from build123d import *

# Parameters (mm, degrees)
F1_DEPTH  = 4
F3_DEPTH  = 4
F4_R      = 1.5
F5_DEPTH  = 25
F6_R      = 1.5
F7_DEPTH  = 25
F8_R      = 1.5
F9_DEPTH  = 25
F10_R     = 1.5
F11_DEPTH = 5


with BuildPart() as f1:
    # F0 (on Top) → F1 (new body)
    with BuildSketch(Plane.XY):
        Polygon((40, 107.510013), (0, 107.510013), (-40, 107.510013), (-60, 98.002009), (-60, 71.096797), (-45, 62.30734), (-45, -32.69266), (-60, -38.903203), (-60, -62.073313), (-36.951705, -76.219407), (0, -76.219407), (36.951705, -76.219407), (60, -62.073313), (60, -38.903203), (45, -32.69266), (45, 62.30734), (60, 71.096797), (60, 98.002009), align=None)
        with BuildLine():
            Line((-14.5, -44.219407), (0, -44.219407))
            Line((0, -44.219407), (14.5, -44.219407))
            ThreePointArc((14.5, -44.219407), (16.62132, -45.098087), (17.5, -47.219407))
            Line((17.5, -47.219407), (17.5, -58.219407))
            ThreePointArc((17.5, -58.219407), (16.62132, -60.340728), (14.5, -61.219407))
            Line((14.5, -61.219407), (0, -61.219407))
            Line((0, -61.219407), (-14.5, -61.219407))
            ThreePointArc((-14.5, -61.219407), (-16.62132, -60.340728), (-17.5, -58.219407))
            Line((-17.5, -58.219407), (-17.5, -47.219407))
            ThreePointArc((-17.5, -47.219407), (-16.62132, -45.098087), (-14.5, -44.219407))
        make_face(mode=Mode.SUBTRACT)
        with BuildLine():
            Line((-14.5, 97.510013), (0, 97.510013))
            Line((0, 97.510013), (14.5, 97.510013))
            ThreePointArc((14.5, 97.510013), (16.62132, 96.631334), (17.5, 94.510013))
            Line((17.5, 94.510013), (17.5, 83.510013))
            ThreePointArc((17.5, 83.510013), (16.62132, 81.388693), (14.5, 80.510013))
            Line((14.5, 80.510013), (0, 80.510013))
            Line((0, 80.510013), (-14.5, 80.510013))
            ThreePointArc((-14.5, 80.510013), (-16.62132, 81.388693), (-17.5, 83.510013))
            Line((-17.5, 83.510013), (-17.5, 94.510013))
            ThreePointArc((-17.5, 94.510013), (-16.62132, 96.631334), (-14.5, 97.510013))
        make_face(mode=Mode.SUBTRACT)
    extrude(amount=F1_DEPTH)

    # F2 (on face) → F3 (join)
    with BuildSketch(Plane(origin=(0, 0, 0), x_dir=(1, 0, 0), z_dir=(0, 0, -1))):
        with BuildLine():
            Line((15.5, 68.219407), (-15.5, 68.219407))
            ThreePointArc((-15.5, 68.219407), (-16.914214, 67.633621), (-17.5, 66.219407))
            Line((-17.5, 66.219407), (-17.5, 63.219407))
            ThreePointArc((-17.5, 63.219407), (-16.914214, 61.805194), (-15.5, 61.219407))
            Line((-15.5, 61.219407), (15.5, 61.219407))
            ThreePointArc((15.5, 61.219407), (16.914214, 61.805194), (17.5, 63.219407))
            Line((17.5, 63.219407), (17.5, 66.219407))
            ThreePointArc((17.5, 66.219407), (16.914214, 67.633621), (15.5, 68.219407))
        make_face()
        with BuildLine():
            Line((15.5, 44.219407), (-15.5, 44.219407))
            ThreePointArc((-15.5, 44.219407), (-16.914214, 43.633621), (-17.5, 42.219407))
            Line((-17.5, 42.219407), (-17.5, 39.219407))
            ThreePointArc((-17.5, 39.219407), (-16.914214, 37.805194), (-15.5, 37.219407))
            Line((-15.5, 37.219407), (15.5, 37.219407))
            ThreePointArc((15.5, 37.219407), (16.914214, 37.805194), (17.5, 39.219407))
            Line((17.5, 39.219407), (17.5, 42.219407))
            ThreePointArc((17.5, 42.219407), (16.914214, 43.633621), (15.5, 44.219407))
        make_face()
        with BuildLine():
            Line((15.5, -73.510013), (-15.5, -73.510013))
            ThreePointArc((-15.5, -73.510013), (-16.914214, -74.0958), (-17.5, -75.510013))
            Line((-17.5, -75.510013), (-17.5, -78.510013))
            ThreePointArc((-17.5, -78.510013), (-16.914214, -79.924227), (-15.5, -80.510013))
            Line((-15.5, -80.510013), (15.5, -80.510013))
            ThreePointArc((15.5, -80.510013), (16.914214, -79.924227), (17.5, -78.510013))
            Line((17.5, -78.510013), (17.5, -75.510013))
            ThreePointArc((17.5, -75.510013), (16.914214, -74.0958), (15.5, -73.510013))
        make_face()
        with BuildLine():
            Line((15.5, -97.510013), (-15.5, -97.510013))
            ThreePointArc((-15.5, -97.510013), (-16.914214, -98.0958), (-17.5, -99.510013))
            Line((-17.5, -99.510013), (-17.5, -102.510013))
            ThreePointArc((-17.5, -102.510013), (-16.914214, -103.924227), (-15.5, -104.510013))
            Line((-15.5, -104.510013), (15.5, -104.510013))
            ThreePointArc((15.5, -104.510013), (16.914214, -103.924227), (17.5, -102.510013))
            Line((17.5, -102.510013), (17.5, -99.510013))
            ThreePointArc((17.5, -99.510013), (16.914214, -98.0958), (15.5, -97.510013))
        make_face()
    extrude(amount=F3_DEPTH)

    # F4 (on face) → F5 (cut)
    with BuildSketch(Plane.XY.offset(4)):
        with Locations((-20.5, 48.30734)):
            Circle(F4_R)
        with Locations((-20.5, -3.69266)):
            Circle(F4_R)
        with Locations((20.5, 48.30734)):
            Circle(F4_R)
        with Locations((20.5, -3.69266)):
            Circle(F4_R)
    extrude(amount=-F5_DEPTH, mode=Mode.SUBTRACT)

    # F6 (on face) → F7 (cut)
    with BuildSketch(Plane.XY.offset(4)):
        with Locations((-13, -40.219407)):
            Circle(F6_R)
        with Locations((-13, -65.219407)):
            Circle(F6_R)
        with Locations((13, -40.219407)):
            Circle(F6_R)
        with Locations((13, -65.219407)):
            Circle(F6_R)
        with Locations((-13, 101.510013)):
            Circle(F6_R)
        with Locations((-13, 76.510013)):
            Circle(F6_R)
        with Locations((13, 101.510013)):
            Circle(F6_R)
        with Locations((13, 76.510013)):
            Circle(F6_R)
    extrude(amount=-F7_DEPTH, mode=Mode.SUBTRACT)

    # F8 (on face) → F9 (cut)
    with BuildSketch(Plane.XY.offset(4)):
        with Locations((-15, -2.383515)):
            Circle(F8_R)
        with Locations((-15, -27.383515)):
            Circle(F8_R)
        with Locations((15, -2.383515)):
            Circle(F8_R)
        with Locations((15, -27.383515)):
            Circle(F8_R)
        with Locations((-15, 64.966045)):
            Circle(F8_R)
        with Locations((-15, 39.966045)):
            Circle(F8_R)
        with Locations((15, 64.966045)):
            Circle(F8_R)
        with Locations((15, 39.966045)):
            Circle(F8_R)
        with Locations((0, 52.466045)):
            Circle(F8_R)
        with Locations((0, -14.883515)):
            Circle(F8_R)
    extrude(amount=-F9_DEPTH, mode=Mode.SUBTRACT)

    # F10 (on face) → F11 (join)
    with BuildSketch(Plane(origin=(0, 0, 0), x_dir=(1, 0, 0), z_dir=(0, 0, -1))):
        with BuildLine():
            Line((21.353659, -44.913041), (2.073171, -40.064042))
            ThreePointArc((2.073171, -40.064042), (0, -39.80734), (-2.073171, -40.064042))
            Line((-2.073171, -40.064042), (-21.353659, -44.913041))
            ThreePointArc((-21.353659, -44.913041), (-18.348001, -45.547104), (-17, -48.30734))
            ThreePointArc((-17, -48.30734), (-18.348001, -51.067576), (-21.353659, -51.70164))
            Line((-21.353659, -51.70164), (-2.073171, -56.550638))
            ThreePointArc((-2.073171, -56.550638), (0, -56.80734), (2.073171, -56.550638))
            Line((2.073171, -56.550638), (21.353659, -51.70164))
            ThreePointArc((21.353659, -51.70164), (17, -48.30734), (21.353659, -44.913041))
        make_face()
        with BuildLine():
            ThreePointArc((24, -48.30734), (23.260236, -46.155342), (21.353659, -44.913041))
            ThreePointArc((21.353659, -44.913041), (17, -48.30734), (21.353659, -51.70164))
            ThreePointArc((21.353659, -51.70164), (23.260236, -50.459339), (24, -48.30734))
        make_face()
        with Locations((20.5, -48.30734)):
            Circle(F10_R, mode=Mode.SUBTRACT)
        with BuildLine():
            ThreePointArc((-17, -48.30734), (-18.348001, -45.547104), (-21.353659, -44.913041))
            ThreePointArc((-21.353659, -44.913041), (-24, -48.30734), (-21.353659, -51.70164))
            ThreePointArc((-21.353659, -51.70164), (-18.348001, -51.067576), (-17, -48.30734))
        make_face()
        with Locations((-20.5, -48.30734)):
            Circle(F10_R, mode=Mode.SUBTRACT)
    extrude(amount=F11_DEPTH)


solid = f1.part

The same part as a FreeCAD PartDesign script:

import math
import FreeCAD as App
import Part
import Sketcher
from FreeCAD import Vector

doc = App.newDocument("Part")
body = doc.addObject("PartDesign::Body", "Body")

sketch1 = body.newObject("Sketcher::SketchObject", "Sketch")
sketch1.AttachmentSupport = (doc.getObject("XY_Plane"), [""])
sketch1.MapMode = "FlatFace"
sketch1.addGeometry([
    Part.LineSegment(Vector(40, 107.510013, 0), Vector(-40, 107.510013, 0)),
    Part.LineSegment(Vector(-40, 107.510013, 0), Vector(-60, 98.002009, 0)),
    Part.LineSegment(Vector(-60, 98.002009, 0), Vector(-60, 71.096797, 0)),
    Part.LineSegment(Vector(-60, 71.096797, 0), Vector(-45, 62.30734, 0)),
    Part.LineSegment(Vector(-45, 62.30734, 0), Vector(-45, -32.69266, 0)),
    Part.LineSegment(Vector(-45, -32.69266, 0), Vector(-60, -38.903203, 0)),
    Part.LineSegment(Vector(-60, -38.903203, 0), Vector(-60, -62.073313, 0)),
    Part.LineSegment(Vector(-60, -62.073313, 0), Vector(-36.951705, -76.219407, 0)),
    Part.LineSegment(Vector(-36.951705, -76.219407, 0), Vector(36.951705, -76.219407, 0)),
    Part.LineSegment(Vector(36.951705, -76.219407, 0), Vector(60, -62.073313, 0)),
    Part.LineSegment(Vector(60, -62.073313, 0), Vector(60, -38.903203, 0)),
    Part.LineSegment(Vector(60, -38.903203, 0), Vector(45, -32.69266, 0)),
    Part.LineSegment(Vector(45, -32.69266, 0), Vector(45, 62.30734, 0)),
    Part.LineSegment(Vector(45, 62.30734, 0), Vector(60, 71.096797, 0)),
    Part.LineSegment(Vector(60, 71.096797, 0), Vector(60, 98.002009, 0)),
    Part.LineSegment(Vector(60, 98.002009, 0), Vector(40, 107.510013, 0)),
    Part.ArcOfCircle(Part.Circle(Vector(-14.499999, -47.219408, 0), Vector(0, 0, 1), 3.000001), math.radians(90.000022), math.radians(179.999978)),
    Part.LineSegment(Vector(-14.5, -44.219407, 0), Vector(14.5, -44.219407, 0)),
    Part.ArcOfCircle(Part.Circle(Vector(14.499999, -47.219408, 0), Vector(0, 0, 1), 3.000001), math.radians(0.000022), math.radians(89.999978)),
    Part.LineSegment(Vector(17.5, -47.219407, 0), Vector(17.5, -58.219407, 0)),
    Part.ArcOfCircle(Part.Circle(Vector(14.500001, -58.219408, 0), Vector(0, 0, 1), 2.999999), math.radians(-90.00001), math.radians(0.00001)),
    Part.LineSegment(Vector(14.5, -61.219407, 0), Vector(-14.5, -61.219407, 0)),
    Part.ArcOfCircle(Part.Circle(Vector(-14.500001, -58.219408, 0), Vector(0, 0, 1), 2.999999), math.radians(179.99999), math.radians(270.00001)),
    Part.LineSegment(Vector(-17.5, -58.219407, 0), Vector(-17.5, -47.219407, 0)),
    Part.ArcOfCircle(Part.Circle(Vector(-14.500001, 94.510014, 0), Vector(0, 0, 1), 2.999999), math.radians(89.99999), math.radians(180.00001)),
    Part.LineSegment(Vector(-14.5, 97.510013, 0), Vector(14.5, 97.510013, 0)),
    Part.ArcOfCircle(Part.Circle(Vector(14.500001, 94.510014, 0), Vector(0, 0, 1), 2.999999), math.radians(-0.00001), math.radians(90.00001)),
    Part.LineSegment(Vector(17.5, 94.510013, 0), Vector(17.5, 83.510013, 0)),
    Part.ArcOfCircle(Part.Circle(Vector(14.499999, 83.510014, 0), Vector(0, 0, 1), 3.000001), math.radians(-89.999978), math.radians(-0.000022)),
    Part.LineSegment(Vector(14.5, 80.510013, 0), Vector(-14.5, 80.510013, 0)),
    Part.ArcOfCircle(Part.Circle(Vector(-14.499999, 83.510014, 0), Vector(0, 0, 1), 3.000001), math.radians(-179.999978), math.radians(-90.000022)),
    Part.LineSegment(Vector(-17.5, 83.510013, 0), Vector(-17.5, 94.510013, 0)),
], False)
sketch1.addConstraint([
    Sketcher.Constraint("Coincident", 0, 2, 1, 1),
    Sketcher.Constraint("Coincident", 1, 2, 2, 1),
    Sketcher.Constraint("Coincident", 2, 2, 3, 1),
    Sketcher.Constraint("Coincident", 3, 2, 4, 1),
    Sketcher.Constraint("Coincident", 4, 2, 5, 1),
    Sketcher.Constraint("Coincident", 5, 2, 6, 1),
    Sketcher.Constraint("Coincident", 6, 2, 7, 1),
    Sketcher.Constraint("Coincident", 7, 2, 8, 1),
    Sketcher.Constraint("Coincident", 8, 2, 9, 1),
    Sketcher.Constraint("Coincident", 9, 2, 10, 1),
    Sketcher.Constraint("Coincident", 10, 2, 11, 1),
    Sketcher.Constraint("Coincident", 11, 2, 12, 1),
    Sketcher.Constraint("Coincident", 12, 2, 13, 1),
    Sketcher.Constraint("Coincident", 13, 2, 14, 1),
    Sketcher.Constraint("Coincident", 14, 2, 15, 1),
    Sketcher.Constraint("Coincident", 15, 2, 0, 1),
    Sketcher.Constraint("Tangent", 16, 1, 17, 1),
    Sketcher.Constraint("Tangent", 17, 2, 18, 2),
    Sketcher.Constraint("Tangent", 18, 1, 19, 1),
    Sketcher.Constraint("Tangent", 19, 2, 20, 2),
    Sketcher.Constraint("Tangent", 20, 1, 21, 1),
    Sketcher.Constraint("Tangent", 21, 2, 22, 2),
    Sketcher.Constraint("Tangent", 22, 1, 23, 1),
    Sketcher.Constraint("Tangent", 23, 2, 16, 2),
    Sketcher.Constraint("Tangent", 24, 1, 25, 1),
    Sketcher.Constraint("Tangent", 25, 2, 26, 2),
    Sketcher.Constraint("Tangent", 26, 1, 27, 1),
    Sketcher.Constraint("Tangent", 27, 2, 28, 2),
    Sketcher.Constraint("Tangent", 28, 1, 29, 1),
    Sketcher.Constraint("Tangent", 29, 2, 30, 2),
    Sketcher.Constraint("Tangent", 30, 1, 31, 1),
    Sketcher.Constraint("Tangent", 31, 2, 24, 2),
    Sketcher.Constraint("Horizontal", 0),
    Sketcher.Constraint("Vertical", 2),
    Sketcher.Constraint("Vertical", 4),
    Sketcher.Constraint("Vertical", 6),
    Sketcher.Constraint("Horizontal", 8),
    Sketcher.Constraint("Vertical", 10),
    Sketcher.Constraint("Vertical", 12),
    Sketcher.Constraint("Vertical", 14),
    Sketcher.Constraint("Horizontal", 17),
    Sketcher.Constraint("Vertical", 19),
    Sketcher.Constraint("Horizontal", 21),
    Sketcher.Constraint("Vertical", 23),
    Sketcher.Constraint("Horizontal", 25),
    Sketcher.Constraint("Vertical", 27),
    Sketcher.Constraint("Horizontal", 29),
    Sketcher.Constraint("Vertical", 31),
    Sketcher.Constraint("Equal", 16, 18),
    Sketcher.Constraint("Equal", 18, 20),
    Sketcher.Constraint("Equal", 20, 22),
    Sketcher.Constraint("Equal", 22, 24),
    Sketcher.Constraint("Equal", 24, 26),
    Sketcher.Constraint("Equal", 26, 28),
    Sketcher.Constraint("Equal", 28, 30),
    Sketcher.Constraint("Symmetric", 6, 2, 9, 2, -2),
    Sketcher.Constraint("Symmetric", 4, 2, 11, 2, -2),
    Sketcher.Constraint("Symmetric", 2, 2, 13, 2, -2),
    Sketcher.Constraint("Horizontal", 5, 2, 10, 2),
    Sketcher.Constraint("Horizontal", 3, 2, 12, 2),
    Sketcher.Constraint("Horizontal", 1, 2, 14, 2),
    Sketcher.Constraint("Vertical", 22, 3, 24, 3),
    Sketcher.Constraint("Vertical", 20, 3, 26, 3),
    Sketcher.Constraint("Vertical", 2, 2, 5, 2),
    Sketcher.Constraint("Equal", 23, 27),
    Sketcher.Constraint("Equal", 7, 9),
    Sketcher.Constraint("Equal", 1, 15),
    Sketcher.Constraint("Radius", 16, 3.000001),
    Sketcher.Constraint("DistanceX", 0, 2, 0, 1, 80.0),
    Sketcher.Constraint("DistanceX", 17, 1, 17, 2, 29.0),
    Sketcher.Constraint("DistanceY", 4, 2, 4, 1, 95.0),
    Sketcher.Constraint("DistanceY", 19, 2, 19, 1, 11.0),
    Sketcher.Constraint("DistanceX", 1, 2, -1, 1, 60.0),
    Sketcher.Constraint("DistanceX", 3, 2, -1, 1, 45.0),
    Sketcher.Constraint("DistanceY", 24, 3, 0, 2, 12.999999),
    Sketcher.Constraint("DistanceY", 7, 2, 22, 3, 17.999999),
    Sketcher.Constraint("DistanceX", 16, 3, -1, 1, 14.499999),
    Sketcher.Constraint("DistanceX", 8, 1, 8, 2, 73.90341),
    Sketcher.Constraint("DistanceY", 6, 2, 6, 1, 23.17011),
    Sketcher.Constraint("Distance", 3, 17.38547),
    Sketcher.Constraint("DistanceY", 2, 2, 2, 1, 26.905212),
    Sketcher.Constraint("DistanceY", 16, 3, -1, 1, 47.219408),
    Sketcher.Constraint("DistanceY", -1, 1, 1, 2, 98.002009),
    Sketcher.Constraint("DistanceY", 16, 3, 24, 3, 141.729422),
    Sketcher.Constraint("Distance", 5, 16.234865),
])
pad1 = body.newObject("PartDesign::Pad", "Pad")
pad1.Profile = sketch1
pad1.Length = 4

sketch2 = body.newObject("Sketcher::SketchObject", "Sketch001")
sketch2.AttachmentSupport = (doc.getObject("XY_Plane"), [""])
sketch2.MapMode = "FlatFace"
sketch2.addGeometry([
    Part.LineSegment(Vector(15.5, -68.219407, 0), Vector(-15.5, -68.219407, 0)),
    Part.ArcOfCircle(Part.Circle(Vector(-15.500001, -66.219408, 0), Vector(0, 0, 1), 1.999999), math.radians(179.999957), math.radians(270.000043)),
    Part.LineSegment(Vector(-17.5, -66.219407, 0), Vector(-17.5, -63.219407, 0)),
    Part.ArcOfCircle(Part.Circle(Vector(-15.5, -63.219407, 0), Vector(0, 0, 1), 2), math.radians(90.000006), math.radians(179.999994)),
    Part.LineSegment(Vector(-15.5, -61.219407, 0), Vector(15.5, -61.219407, 0)),
    Part.ArcOfCircle(Part.Circle(Vector(15.5, -63.219407, 0), Vector(0, 0, 1), 2), math.radians(0.000006), math.radians(89.999994)),
    Part.LineSegment(Vector(17.5, -63.219407, 0), Vector(17.5, -66.219407, 0)),
    Part.ArcOfCircle(Part.Circle(Vector(15.500001, -66.219408, 0), Vector(0, 0, 1), 1.999999), math.radians(-90.000043), math.radians(0.000043)),
    Part.LineSegment(Vector(15.5, -44.219407, 0), Vector(-15.5, -44.219407, 0)),
    Part.ArcOfCircle(Part.Circle(Vector(-15.500001, -42.219408, 0), Vector(0, 0, 1), 1.999999), math.radians(179.999957), math.radians(270.000043)),
    Part.LineSegment(Vector(-17.5, -42.219407, 0), Vector(-17.5, -39.219407, 0)),
    Part.ArcOfCircle(Part.Circle(Vector(-15.5, -39.219407, 0), Vector(0, 0, 1), 2), math.radians(90.000006), math.radians(179.999994)),
    Part.LineSegment(Vector(-15.5, -37.219407, 0), Vector(15.5, -37.219407, 0)),
    Part.ArcOfCircle(Part.Circle(Vector(15.5, -39.219407, 0), Vector(0, 0, 1), 2), math.radians(0.000006), math.radians(89.999994)),
    Part.LineSegment(Vector(17.5, -39.219407, 0), Vector(17.5, -42.219407, 0)),
    Part.ArcOfCircle(Part.Circle(Vector(15.500001, -42.219408, 0), Vector(0, 0, 1), 1.999999), math.radians(-90.000043), math.radians(0.000043)),
    Part.LineSegment(Vector(15.5, 73.510013, 0), Vector(-15.5, 73.510013, 0)),
    Part.ArcOfCircle(Part.Circle(Vector(-15.5, 75.510013, 0), Vector(0, 0, 1), 2), math.radians(-179.999994), math.radians(-90.000006)),
    Part.LineSegment(Vector(-17.5, 75.510013, 0), Vector(-17.5, 78.510013, 0)),
    Part.ArcOfCircle(Part.Circle(Vector(-15.500001, 78.510014, 0), Vector(0, 0, 1), 1.999999), math.radians(89.999957), math.radians(180.000043)),
    Part.LineSegment(Vector(-15.5, 80.510013, 0), Vector(15.5, 80.510013, 0)),
    Part.ArcOfCircle(Part.Circle(Vector(15.500001, 78.510014, 0), Vector(0, 0, 1), 1.999999), math.radians(-0.000043), math.radians(90.000043)),
    Part.LineSegment(Vector(17.5, 78.510013, 0), Vector(17.5, 75.510013, 0)),
    Part.ArcOfCircle(Part.Circle(Vector(15.5, 75.510013, 0), Vector(0, 0, 1), 2), math.radians(-89.999994), math.radians(-0.000006)),
    Part.LineSegment(Vector(15.5, 97.510013, 0), Vector(-15.5, 97.510013, 0)),
    Part.ArcOfCircle(Part.Circle(Vector(-15.5, 99.510013, 0), Vector(0, 0, 1), 2), math.radians(-179.999994), math.radians(-90.000006)),
    Part.LineSegment(Vector(-17.5, 99.510013, 0), Vector(-17.5, 102.510013, 0)),
    Part.ArcOfCircle(Part.Circle(Vector(-15.500001, 102.510014, 0), Vector(0, 0, 1), 1.999999), math.radians(89.999957), math.radians(180.000043)),
    Part.LineSegment(Vector(-15.5, 104.510013, 0), Vector(15.5, 104.510013, 0)),
    Part.ArcOfCircle(Part.Circle(Vector(15.500001, 102.510014, 0), Vector(0, 0, 1), 1.999999), math.radians(-0.000043), math.radians(90.000043)),
    Part.LineSegment(Vector(17.5, 102.510013, 0), Vector(17.5, 99.510013, 0)),
    Part.ArcOfCircle(Part.Circle(Vector(15.5, 99.510013, 0), Vector(0, 0, 1), 2), math.radians(-89.999994), math.radians(-0.000006)),
], False)
sketch2.addConstraint([
    Sketcher.Constraint("Tangent", 0, 2, 1, 2),
    Sketcher.Constraint("Tangent", 1, 1, 2, 1),
    Sketcher.Constraint("Tangent", 2, 2, 3, 2),
    Sketcher.Constraint("Tangent", 3, 1, 4, 1),
    Sketcher.Constraint("Tangent", 4, 2, 5, 2),
    Sketcher.Constraint("Tangent", 5, 1, 6, 1),
    Sketcher.Constraint("Tangent", 6, 2, 7, 2),
    Sketcher.Constraint("Tangent", 7, 1, 0, 1),
    Sketcher.Constraint("Tangent", 8, 2, 9, 2),
    Sketcher.Constraint("Tangent", 9, 1, 10, 1),
    Sketcher.Constraint("Tangent", 10, 2, 11, 2),
    Sketcher.Constraint("Tangent", 11, 1, 12, 1),
    Sketcher.Constraint("Tangent", 12, 2, 13, 2),
    Sketcher.Constraint("Tangent", 13, 1, 14, 1),
    Sketcher.Constraint("Tangent", 14, 2, 15, 2),
    Sketcher.Constraint("Tangent", 15, 1, 8, 1),
    Sketcher.Constraint("Tangent", 16, 2, 17, 2),
    Sketcher.Constraint("Tangent", 17, 1, 18, 1),
    Sketcher.Constraint("Tangent", 18, 2, 19, 2),
    Sketcher.Constraint("Tangent", 19, 1, 20, 1),
    Sketcher.Constraint("Tangent", 20, 2, 21, 2),
    Sketcher.Constraint("Tangent", 21, 1, 22, 1),
    Sketcher.Constraint("Tangent", 22, 2, 23, 2),
    Sketcher.Constraint("Tangent", 23, 1, 16, 1),
    Sketcher.Constraint("Tangent", 24, 2, 25, 2),
    Sketcher.Constraint("Tangent", 25, 1, 26, 1),
    Sketcher.Constraint("Tangent", 26, 2, 27, 2),
    Sketcher.Constraint("Tangent", 27, 1, 28, 1),
    Sketcher.Constraint("Tangent", 28, 2, 29, 2),
    Sketcher.Constraint("Tangent", 29, 1, 30, 1),
    Sketcher.Constraint("Tangent", 30, 2, 31, 2),
    Sketcher.Constraint("Tangent", 31, 1, 24, 1),
    Sketcher.Constraint("Horizontal", 0),
    Sketcher.Constraint("Vertical", 2),
    Sketcher.Constraint("Horizontal", 4),
    Sketcher.Constraint("Vertical", 6),
    Sketcher.Constraint("Horizontal", 8),
    Sketcher.Constraint("Vertical", 10),
    Sketcher.Constraint("Horizontal", 12),
    Sketcher.Constraint("Vertical", 14),
    Sketcher.Constraint("Horizontal", 16),
    Sketcher.Constraint("Vertical", 18),
    Sketcher.Constraint("Horizontal", 20),
    Sketcher.Constraint("Vertical", 22),
    Sketcher.Constraint("Horizontal", 24),
    Sketcher.Constraint("Vertical", 26),
    Sketcher.Constraint("Horizontal", 28),
    Sketcher.Constraint("Vertical", 30),
    Sketcher.Constraint("Equal", 1, 3),
    Sketcher.Constraint("Equal", 3, 5),
    Sketcher.Constraint("Equal", 5, 7),
    Sketcher.Constraint("Equal", 7, 9),
    Sketcher.Constraint("Equal", 9, 11),
    Sketcher.Constraint("Equal", 11, 13),
    Sketcher.Constraint("Equal", 13, 15),
    Sketcher.Constraint("Equal", 15, 17),
    Sketcher.Constraint("Equal", 17, 19),
    Sketcher.Constraint("Equal", 19, 21),
    Sketcher.Constraint("Equal", 21, 23),
    Sketcher.Constraint("Equal", 23, 25),
    Sketcher.Constraint("Equal", 25, 27),
    Sketcher.Constraint("Equal", 27, 29),
    Sketcher.Constraint("Equal", 29, 31),
    Sketcher.Constraint("Vertical", 3, 3, 9, 3),
    Sketcher.Constraint("Vertical", 7, 3, 13, 3),
    Sketcher.Constraint("Vertical", 11, 3, 17, 3),
    Sketcher.Constraint("Vertical", 15, 3, 21, 3),
    Sketcher.Constraint("Vertical", 19, 3, 25, 3),
    Sketcher.Constraint("Vertical", 23, 3, 29, 3),
    Sketcher.Constraint("Equal", 6, 10),
    Sketcher.Constraint("Equal", 14, 18),
    Sketcher.Constraint("Equal", 22, 26),
    Sketcher.Constraint("Radius", 1, 1.999999),
    Sketcher.Constraint("DistanceX", 0, 2, 0, 1, 31.0),
    Sketcher.Constraint("DistanceY", 2, 1, 2, 2, 3.0),
    Sketcher.Constraint("DistanceY", 3, 3, 9, 3, 20.999999),
    Sketcher.Constraint("DistanceY", 19, 3, 25, 3, 20.999999),
    Sketcher.Constraint("DistanceX", 1, 3, -1, 1, 15.500001),
    Sketcher.Constraint("DistanceY", 1, 3, -1, 1, 66.219408),
    Sketcher.Constraint("DistanceY", 11, 3, 17, 3, 114.72942),
])
pad2 = body.newObject("PartDesign::Pad", "Pad001")
pad2.Profile = sketch2
pad2.Length = 4
pad2.Reversed = True

sketch3 = body.newObject("Sketcher::SketchObject", "Sketch002")
sketch3.AttachmentSupport = (doc.getObject("XY_Plane"), [""])
sketch3.MapMode = "FlatFace"
sketch3.AttachmentOffset = App.Placement(Vector(0, 0, 4), App.Rotation())
sketch3.addGeometry([
    Part.Circle(Vector(-20.5, 48.30734, 0), Vector(0, 0, 1), 1.5),
    Part.Circle(Vector(-20.5, -3.69266, 0), Vector(0, 0, 1), 1.5),
    Part.Circle(Vector(20.5, 48.30734, 0), Vector(0, 0, 1), 1.5),
    Part.Circle(Vector(20.5, -3.69266, 0), Vector(0, 0, 1), 1.5),
], False)
sketch3.addConstraint([
    Sketcher.Constraint("Equal", 0, 1),
    Sketcher.Constraint("Equal", 1, 2),
    Sketcher.Constraint("Equal", 2, 3),
    Sketcher.Constraint("Symmetric", 0, 3, 2, 3, -2),
    Sketcher.Constraint("Symmetric", 1, 3, 3, 3, -2),
    Sketcher.Constraint("Vertical", 0, 3, 1, 3),
    Sketcher.Constraint("Diameter", 0, 3.0),
    Sketcher.Constraint("DistanceY", 1, 3, 0, 3, 52.0),
    Sketcher.Constraint("DistanceX", 0, 3, 2, 3, 41.0),
    Sketcher.Constraint("DistanceY", -1, 1, 0, 3, 48.30734),
])
pocket1 = body.newObject("PartDesign::Pocket", "Pocket")
pocket1.Profile = sketch3
pocket1.Length = 25

sketch4 = body.newObject("Sketcher::SketchObject", "Sketch003")
sketch4.AttachmentSupport = (doc.getObject("XY_Plane"), [""])
sketch4.MapMode = "FlatFace"
sketch4.AttachmentOffset = App.Placement(Vector(0, 0, 4), App.Rotation())
sketch4.addGeometry([
    Part.Circle(Vector(-13, -40.219407, 0), Vector(0, 0, 1), 1.5),
    Part.Circle(Vector(-13, -65.219407, 0), Vector(0, 0, 1), 1.5),
    Part.Circle(Vector(13, -40.219407, 0), Vector(0, 0, 1), 1.5),
    Part.Circle(Vector(13, -65.219407, 0), Vector(0, 0, 1), 1.5),
    Part.Circle(Vector(-13, 101.510013, 0), Vector(0, 0, 1), 1.5),
    Part.Circle(Vector(-13, 76.510013, 0), Vector(0, 0, 1), 1.5),
    Part.Circle(Vector(13, 101.510013, 0), Vector(0, 0, 1), 1.5),
    Part.Circle(Vector(13, 76.510013, 0), Vector(0, 0, 1), 1.5),
], False)
sketch4.addConstraint([
    Sketcher.Constraint("Equal", 0, 1),
    Sketcher.Constraint("Equal", 1, 2),
    Sketcher.Constraint("Equal", 2, 3),
    Sketcher.Constraint("Equal", 3, 4),
    Sketcher.Constraint("Equal", 4, 5),
    Sketcher.Constraint("Equal", 5, 6),
    Sketcher.Constraint("Equal", 6, 7),
    Sketcher.Constraint("Symmetric", 0, 3, 2, 3, -2),
    Sketcher.Constraint("Symmetric", 1, 3, 3, 3, -2),
    Sketcher.Constraint("Symmetric", 4, 3, 6, 3, -2),
    Sketcher.Constraint("Symmetric", 5, 3, 7, 3, -2),
    Sketcher.Constraint("Vertical", 0, 3, 1, 3),
    Sketcher.Constraint("Vertical", 1, 3, 4, 3),
    Sketcher.Constraint("Vertical", 4, 3, 5, 3),
    Sketcher.Constraint("Diameter", 0, 3.0),
    Sketcher.Constraint("DistanceX", 0, 3, -1, 1, 13.0),
    Sketcher.Constraint("DistanceY", 1, 3, 0, 3, 25.0),
    Sketcher.Constraint("DistanceY", 5, 3, 4, 3, 25.0),
    Sketcher.Constraint("DistanceY", 0, 3, 4, 3, 141.72942),
    Sketcher.Constraint("DistanceY", 0, 3, -1, 1, 40.219407),
])
pocket2 = body.newObject("PartDesign::Pocket", "Pocket001")
pocket2.Profile = sketch4
pocket2.Length = 25

sketch5 = body.newObject("Sketcher::SketchObject", "Sketch004")
sketch5.AttachmentSupport = (doc.getObject("XY_Plane"), [""])
sketch5.MapMode = "FlatFace"
sketch5.AttachmentOffset = App.Placement(Vector(0, 0, 4), App.Rotation())
sketch5.addGeometry([
    Part.Circle(Vector(-15, -2.383515, 0), Vector(0, 0, 1), 1.5),
    Part.Circle(Vector(-15, -27.383515, 0), Vector(0, 0, 1), 1.5),
    Part.Circle(Vector(15, -2.383515, 0), Vector(0, 0, 1), 1.5),
    Part.Circle(Vector(15, -27.383515, 0), Vector(0, 0, 1), 1.5),
    Part.Circle(Vector(-15, 64.966045, 0), Vector(0, 0, 1), 1.5),
    Part.Circle(Vector(-15, 39.966045, 0), Vector(0, 0, 1), 1.5),
    Part.Circle(Vector(15, 64.966045, 0), Vector(0, 0, 1), 1.5),
    Part.Circle(Vector(15, 39.966045, 0), Vector(0, 0, 1), 1.5),
    Part.Circle(Vector(0, 52.466045, 0), Vector(0, 0, 1), 1.5),
    Part.Circle(Vector(0, -14.883515, 0), Vector(0, 0, 1), 1.5),
], False)
sketch5.addConstraint([
    Sketcher.Constraint("Equal", 0, 1),
    Sketcher.Constraint("Equal", 1, 2),
    Sketcher.Constraint("Equal", 2, 3),
    Sketcher.Constraint("Equal", 3, 4),
    Sketcher.Constraint("Equal", 4, 5),
    Sketcher.Constraint("Equal", 5, 6),
    Sketcher.Constraint("Equal", 6, 7),
    Sketcher.Constraint("Equal", 7, 8),
    Sketcher.Constraint("Equal", 8, 9),
    Sketcher.Constraint("Symmetric", 0, 3, 2, 3, -2),
    Sketcher.Constraint("Symmetric", 1, 3, 3, 3, -2),
    Sketcher.Constraint("Symmetric", 4, 3, 6, 3, -2),
    Sketcher.Constraint("Symmetric", 5, 3, 7, 3, -2),
    Sketcher.Constraint("PointOnObject", 8, 3, -2),
    Sketcher.Constraint("PointOnObject", 9, 3, -2),
    Sketcher.Constraint("Vertical", 0, 3, 1, 3),
    Sketcher.Constraint("Vertical", 1, 3, 4, 3),
    Sketcher.Constraint("Vertical", 4, 3, 5, 3),
    Sketcher.Constraint("Diameter", 0, 3.0),
    Sketcher.Constraint("DistanceX", 0, 3, -1, 1, 15.0),
    Sketcher.Constraint("DistanceY", 1, 3, 0, 3, 25.0),
    Sketcher.Constraint("DistanceY", 5, 3, 4, 3, 25.0),
    Sketcher.Constraint("DistanceY", 8, 3, 4, 3, 12.5),
    Sketcher.Constraint("DistanceY", 9, 3, 0, 3, 12.5),
    Sketcher.Constraint("DistanceY", 0, 3, 4, 3, 67.34956),
    Sketcher.Constraint("DistanceY", 0, 3, -1, 1, 2.383515),
])
pocket3 = body.newObject("PartDesign::Pocket", "Pocket002")
pocket3.Profile = sketch5
pocket3.Length = 25

sketch6 = body.newObject("Sketcher::SketchObject", "Sketch005")
sketch6.AttachmentSupport = (doc.getObject("XY_Plane"), [""])
sketch6.MapMode = "FlatFace"
sketch6.addGeometry([
    Part.LineSegment(Vector(21.353659, 44.913041, 0), Vector(2.073171, 40.064042, 0)),
    Part.ArcOfCircle(Part.Circle(Vector(0, 48.30734, 0), Vector(0, 0, 1), 8.5), math.radians(-104.116983), math.radians(-75.883017)),
    Part.LineSegment(Vector(-2.073171, 40.064042, 0), Vector(-21.353659, 44.913041, 0)),
    Part.ArcOfCircle(Part.Circle(Vector(-20.499999, 48.307341, 0), Vector(0, 0, 1), 3.500001), math.radians(104.116995), math.radians(255.883005)),
    Part.LineSegment(Vector(-21.353659, 51.70164, 0), Vector(-2.073171, 56.550638, 0)),
    Part.ArcOfCircle(Part.Circle(Vector(0, 48.30734, 0), Vector(0, 0, 1), 8.5), math.radians(75.883017), math.radians(104.116983)),
    Part.LineSegment(Vector(2.073171, 56.550638, 0), Vector(21.353659, 51.70164, 0)),
    Part.ArcOfCircle(Part.Circle(Vector(20.499999, 48.30734, 0), Vector(0, 0, 1), 3.500001), math.radians(-0.000005), math.radians(75.883002)),
    Part.ArcOfCircle(Part.Circle(Vector(20.499999, 48.307341, 0), Vector(0, 0, 1), 3.500001), math.radians(-75.883002), math.radians(-0.000011)),
    Part.Circle(Vector(-20.5, 48.30734, 0), Vector(0, 0, 1), 1.5),
    Part.Circle(Vector(20.5, 48.30734, 0), Vector(0, 0, 1), 1.5),
], False)
sketch6.addConstraint([
    Sketcher.Constraint("Tangent", 0, 2, 1, 2),
    Sketcher.Constraint("Tangent", 1, 1, 2, 1),
    Sketcher.Constraint("Tangent", 2, 2, 3, 2),
    Sketcher.Constraint("Tangent", 3, 1, 4, 1),
    Sketcher.Constraint("Tangent", 4, 2, 5, 2),
    Sketcher.Constraint("Tangent", 5, 1, 6, 1),
    Sketcher.Constraint("Tangent", 6, 2, 7, 2),
    Sketcher.Constraint("Tangent", 7, 1, 8, 2),
    Sketcher.Constraint("Tangent", 8, 1, 0, 1),
    Sketcher.Constraint("Coincident", 5, 3, 1, 3),
    Sketcher.Constraint("Coincident", 9, 3, 3, 3),
    Sketcher.Constraint("Coincident", 10, 3, 7, 3),
    Sketcher.Constraint("Equal", 1, 5),
    Sketcher.Constraint("Equal", 3, 7),
    Sketcher.Constraint("Equal", 7, 8),
    Sketcher.Constraint("Equal", 9, 10),
    Sketcher.Constraint("Symmetric", 3, 3, 7, 3, -2),
    Sketcher.Constraint("PointOnObject", 1, 3, -2),
    Sketcher.Constraint("Parallel", 0, 4),
    Sketcher.Constraint("Horizontal", 10, 3, 7, 1),
    Sketcher.Constraint("Diameter", 9, 3.0),
    Sketcher.Constraint("Radius", 1, 8.5),
    Sketcher.Constraint("Radius", 3, 3.500001),
    Sketcher.Constraint("DistanceX", -1, 1, 7, 1, 24.0),
    Sketcher.Constraint("DistanceY", -1, 1, 1, 3, 48.30734),
])
pad3 = body.newObject("PartDesign::Pad", "Pad002")
pad3.Profile = sketch6
pad3.Length = 5
pad3.Reversed = True

doc.recompute()
